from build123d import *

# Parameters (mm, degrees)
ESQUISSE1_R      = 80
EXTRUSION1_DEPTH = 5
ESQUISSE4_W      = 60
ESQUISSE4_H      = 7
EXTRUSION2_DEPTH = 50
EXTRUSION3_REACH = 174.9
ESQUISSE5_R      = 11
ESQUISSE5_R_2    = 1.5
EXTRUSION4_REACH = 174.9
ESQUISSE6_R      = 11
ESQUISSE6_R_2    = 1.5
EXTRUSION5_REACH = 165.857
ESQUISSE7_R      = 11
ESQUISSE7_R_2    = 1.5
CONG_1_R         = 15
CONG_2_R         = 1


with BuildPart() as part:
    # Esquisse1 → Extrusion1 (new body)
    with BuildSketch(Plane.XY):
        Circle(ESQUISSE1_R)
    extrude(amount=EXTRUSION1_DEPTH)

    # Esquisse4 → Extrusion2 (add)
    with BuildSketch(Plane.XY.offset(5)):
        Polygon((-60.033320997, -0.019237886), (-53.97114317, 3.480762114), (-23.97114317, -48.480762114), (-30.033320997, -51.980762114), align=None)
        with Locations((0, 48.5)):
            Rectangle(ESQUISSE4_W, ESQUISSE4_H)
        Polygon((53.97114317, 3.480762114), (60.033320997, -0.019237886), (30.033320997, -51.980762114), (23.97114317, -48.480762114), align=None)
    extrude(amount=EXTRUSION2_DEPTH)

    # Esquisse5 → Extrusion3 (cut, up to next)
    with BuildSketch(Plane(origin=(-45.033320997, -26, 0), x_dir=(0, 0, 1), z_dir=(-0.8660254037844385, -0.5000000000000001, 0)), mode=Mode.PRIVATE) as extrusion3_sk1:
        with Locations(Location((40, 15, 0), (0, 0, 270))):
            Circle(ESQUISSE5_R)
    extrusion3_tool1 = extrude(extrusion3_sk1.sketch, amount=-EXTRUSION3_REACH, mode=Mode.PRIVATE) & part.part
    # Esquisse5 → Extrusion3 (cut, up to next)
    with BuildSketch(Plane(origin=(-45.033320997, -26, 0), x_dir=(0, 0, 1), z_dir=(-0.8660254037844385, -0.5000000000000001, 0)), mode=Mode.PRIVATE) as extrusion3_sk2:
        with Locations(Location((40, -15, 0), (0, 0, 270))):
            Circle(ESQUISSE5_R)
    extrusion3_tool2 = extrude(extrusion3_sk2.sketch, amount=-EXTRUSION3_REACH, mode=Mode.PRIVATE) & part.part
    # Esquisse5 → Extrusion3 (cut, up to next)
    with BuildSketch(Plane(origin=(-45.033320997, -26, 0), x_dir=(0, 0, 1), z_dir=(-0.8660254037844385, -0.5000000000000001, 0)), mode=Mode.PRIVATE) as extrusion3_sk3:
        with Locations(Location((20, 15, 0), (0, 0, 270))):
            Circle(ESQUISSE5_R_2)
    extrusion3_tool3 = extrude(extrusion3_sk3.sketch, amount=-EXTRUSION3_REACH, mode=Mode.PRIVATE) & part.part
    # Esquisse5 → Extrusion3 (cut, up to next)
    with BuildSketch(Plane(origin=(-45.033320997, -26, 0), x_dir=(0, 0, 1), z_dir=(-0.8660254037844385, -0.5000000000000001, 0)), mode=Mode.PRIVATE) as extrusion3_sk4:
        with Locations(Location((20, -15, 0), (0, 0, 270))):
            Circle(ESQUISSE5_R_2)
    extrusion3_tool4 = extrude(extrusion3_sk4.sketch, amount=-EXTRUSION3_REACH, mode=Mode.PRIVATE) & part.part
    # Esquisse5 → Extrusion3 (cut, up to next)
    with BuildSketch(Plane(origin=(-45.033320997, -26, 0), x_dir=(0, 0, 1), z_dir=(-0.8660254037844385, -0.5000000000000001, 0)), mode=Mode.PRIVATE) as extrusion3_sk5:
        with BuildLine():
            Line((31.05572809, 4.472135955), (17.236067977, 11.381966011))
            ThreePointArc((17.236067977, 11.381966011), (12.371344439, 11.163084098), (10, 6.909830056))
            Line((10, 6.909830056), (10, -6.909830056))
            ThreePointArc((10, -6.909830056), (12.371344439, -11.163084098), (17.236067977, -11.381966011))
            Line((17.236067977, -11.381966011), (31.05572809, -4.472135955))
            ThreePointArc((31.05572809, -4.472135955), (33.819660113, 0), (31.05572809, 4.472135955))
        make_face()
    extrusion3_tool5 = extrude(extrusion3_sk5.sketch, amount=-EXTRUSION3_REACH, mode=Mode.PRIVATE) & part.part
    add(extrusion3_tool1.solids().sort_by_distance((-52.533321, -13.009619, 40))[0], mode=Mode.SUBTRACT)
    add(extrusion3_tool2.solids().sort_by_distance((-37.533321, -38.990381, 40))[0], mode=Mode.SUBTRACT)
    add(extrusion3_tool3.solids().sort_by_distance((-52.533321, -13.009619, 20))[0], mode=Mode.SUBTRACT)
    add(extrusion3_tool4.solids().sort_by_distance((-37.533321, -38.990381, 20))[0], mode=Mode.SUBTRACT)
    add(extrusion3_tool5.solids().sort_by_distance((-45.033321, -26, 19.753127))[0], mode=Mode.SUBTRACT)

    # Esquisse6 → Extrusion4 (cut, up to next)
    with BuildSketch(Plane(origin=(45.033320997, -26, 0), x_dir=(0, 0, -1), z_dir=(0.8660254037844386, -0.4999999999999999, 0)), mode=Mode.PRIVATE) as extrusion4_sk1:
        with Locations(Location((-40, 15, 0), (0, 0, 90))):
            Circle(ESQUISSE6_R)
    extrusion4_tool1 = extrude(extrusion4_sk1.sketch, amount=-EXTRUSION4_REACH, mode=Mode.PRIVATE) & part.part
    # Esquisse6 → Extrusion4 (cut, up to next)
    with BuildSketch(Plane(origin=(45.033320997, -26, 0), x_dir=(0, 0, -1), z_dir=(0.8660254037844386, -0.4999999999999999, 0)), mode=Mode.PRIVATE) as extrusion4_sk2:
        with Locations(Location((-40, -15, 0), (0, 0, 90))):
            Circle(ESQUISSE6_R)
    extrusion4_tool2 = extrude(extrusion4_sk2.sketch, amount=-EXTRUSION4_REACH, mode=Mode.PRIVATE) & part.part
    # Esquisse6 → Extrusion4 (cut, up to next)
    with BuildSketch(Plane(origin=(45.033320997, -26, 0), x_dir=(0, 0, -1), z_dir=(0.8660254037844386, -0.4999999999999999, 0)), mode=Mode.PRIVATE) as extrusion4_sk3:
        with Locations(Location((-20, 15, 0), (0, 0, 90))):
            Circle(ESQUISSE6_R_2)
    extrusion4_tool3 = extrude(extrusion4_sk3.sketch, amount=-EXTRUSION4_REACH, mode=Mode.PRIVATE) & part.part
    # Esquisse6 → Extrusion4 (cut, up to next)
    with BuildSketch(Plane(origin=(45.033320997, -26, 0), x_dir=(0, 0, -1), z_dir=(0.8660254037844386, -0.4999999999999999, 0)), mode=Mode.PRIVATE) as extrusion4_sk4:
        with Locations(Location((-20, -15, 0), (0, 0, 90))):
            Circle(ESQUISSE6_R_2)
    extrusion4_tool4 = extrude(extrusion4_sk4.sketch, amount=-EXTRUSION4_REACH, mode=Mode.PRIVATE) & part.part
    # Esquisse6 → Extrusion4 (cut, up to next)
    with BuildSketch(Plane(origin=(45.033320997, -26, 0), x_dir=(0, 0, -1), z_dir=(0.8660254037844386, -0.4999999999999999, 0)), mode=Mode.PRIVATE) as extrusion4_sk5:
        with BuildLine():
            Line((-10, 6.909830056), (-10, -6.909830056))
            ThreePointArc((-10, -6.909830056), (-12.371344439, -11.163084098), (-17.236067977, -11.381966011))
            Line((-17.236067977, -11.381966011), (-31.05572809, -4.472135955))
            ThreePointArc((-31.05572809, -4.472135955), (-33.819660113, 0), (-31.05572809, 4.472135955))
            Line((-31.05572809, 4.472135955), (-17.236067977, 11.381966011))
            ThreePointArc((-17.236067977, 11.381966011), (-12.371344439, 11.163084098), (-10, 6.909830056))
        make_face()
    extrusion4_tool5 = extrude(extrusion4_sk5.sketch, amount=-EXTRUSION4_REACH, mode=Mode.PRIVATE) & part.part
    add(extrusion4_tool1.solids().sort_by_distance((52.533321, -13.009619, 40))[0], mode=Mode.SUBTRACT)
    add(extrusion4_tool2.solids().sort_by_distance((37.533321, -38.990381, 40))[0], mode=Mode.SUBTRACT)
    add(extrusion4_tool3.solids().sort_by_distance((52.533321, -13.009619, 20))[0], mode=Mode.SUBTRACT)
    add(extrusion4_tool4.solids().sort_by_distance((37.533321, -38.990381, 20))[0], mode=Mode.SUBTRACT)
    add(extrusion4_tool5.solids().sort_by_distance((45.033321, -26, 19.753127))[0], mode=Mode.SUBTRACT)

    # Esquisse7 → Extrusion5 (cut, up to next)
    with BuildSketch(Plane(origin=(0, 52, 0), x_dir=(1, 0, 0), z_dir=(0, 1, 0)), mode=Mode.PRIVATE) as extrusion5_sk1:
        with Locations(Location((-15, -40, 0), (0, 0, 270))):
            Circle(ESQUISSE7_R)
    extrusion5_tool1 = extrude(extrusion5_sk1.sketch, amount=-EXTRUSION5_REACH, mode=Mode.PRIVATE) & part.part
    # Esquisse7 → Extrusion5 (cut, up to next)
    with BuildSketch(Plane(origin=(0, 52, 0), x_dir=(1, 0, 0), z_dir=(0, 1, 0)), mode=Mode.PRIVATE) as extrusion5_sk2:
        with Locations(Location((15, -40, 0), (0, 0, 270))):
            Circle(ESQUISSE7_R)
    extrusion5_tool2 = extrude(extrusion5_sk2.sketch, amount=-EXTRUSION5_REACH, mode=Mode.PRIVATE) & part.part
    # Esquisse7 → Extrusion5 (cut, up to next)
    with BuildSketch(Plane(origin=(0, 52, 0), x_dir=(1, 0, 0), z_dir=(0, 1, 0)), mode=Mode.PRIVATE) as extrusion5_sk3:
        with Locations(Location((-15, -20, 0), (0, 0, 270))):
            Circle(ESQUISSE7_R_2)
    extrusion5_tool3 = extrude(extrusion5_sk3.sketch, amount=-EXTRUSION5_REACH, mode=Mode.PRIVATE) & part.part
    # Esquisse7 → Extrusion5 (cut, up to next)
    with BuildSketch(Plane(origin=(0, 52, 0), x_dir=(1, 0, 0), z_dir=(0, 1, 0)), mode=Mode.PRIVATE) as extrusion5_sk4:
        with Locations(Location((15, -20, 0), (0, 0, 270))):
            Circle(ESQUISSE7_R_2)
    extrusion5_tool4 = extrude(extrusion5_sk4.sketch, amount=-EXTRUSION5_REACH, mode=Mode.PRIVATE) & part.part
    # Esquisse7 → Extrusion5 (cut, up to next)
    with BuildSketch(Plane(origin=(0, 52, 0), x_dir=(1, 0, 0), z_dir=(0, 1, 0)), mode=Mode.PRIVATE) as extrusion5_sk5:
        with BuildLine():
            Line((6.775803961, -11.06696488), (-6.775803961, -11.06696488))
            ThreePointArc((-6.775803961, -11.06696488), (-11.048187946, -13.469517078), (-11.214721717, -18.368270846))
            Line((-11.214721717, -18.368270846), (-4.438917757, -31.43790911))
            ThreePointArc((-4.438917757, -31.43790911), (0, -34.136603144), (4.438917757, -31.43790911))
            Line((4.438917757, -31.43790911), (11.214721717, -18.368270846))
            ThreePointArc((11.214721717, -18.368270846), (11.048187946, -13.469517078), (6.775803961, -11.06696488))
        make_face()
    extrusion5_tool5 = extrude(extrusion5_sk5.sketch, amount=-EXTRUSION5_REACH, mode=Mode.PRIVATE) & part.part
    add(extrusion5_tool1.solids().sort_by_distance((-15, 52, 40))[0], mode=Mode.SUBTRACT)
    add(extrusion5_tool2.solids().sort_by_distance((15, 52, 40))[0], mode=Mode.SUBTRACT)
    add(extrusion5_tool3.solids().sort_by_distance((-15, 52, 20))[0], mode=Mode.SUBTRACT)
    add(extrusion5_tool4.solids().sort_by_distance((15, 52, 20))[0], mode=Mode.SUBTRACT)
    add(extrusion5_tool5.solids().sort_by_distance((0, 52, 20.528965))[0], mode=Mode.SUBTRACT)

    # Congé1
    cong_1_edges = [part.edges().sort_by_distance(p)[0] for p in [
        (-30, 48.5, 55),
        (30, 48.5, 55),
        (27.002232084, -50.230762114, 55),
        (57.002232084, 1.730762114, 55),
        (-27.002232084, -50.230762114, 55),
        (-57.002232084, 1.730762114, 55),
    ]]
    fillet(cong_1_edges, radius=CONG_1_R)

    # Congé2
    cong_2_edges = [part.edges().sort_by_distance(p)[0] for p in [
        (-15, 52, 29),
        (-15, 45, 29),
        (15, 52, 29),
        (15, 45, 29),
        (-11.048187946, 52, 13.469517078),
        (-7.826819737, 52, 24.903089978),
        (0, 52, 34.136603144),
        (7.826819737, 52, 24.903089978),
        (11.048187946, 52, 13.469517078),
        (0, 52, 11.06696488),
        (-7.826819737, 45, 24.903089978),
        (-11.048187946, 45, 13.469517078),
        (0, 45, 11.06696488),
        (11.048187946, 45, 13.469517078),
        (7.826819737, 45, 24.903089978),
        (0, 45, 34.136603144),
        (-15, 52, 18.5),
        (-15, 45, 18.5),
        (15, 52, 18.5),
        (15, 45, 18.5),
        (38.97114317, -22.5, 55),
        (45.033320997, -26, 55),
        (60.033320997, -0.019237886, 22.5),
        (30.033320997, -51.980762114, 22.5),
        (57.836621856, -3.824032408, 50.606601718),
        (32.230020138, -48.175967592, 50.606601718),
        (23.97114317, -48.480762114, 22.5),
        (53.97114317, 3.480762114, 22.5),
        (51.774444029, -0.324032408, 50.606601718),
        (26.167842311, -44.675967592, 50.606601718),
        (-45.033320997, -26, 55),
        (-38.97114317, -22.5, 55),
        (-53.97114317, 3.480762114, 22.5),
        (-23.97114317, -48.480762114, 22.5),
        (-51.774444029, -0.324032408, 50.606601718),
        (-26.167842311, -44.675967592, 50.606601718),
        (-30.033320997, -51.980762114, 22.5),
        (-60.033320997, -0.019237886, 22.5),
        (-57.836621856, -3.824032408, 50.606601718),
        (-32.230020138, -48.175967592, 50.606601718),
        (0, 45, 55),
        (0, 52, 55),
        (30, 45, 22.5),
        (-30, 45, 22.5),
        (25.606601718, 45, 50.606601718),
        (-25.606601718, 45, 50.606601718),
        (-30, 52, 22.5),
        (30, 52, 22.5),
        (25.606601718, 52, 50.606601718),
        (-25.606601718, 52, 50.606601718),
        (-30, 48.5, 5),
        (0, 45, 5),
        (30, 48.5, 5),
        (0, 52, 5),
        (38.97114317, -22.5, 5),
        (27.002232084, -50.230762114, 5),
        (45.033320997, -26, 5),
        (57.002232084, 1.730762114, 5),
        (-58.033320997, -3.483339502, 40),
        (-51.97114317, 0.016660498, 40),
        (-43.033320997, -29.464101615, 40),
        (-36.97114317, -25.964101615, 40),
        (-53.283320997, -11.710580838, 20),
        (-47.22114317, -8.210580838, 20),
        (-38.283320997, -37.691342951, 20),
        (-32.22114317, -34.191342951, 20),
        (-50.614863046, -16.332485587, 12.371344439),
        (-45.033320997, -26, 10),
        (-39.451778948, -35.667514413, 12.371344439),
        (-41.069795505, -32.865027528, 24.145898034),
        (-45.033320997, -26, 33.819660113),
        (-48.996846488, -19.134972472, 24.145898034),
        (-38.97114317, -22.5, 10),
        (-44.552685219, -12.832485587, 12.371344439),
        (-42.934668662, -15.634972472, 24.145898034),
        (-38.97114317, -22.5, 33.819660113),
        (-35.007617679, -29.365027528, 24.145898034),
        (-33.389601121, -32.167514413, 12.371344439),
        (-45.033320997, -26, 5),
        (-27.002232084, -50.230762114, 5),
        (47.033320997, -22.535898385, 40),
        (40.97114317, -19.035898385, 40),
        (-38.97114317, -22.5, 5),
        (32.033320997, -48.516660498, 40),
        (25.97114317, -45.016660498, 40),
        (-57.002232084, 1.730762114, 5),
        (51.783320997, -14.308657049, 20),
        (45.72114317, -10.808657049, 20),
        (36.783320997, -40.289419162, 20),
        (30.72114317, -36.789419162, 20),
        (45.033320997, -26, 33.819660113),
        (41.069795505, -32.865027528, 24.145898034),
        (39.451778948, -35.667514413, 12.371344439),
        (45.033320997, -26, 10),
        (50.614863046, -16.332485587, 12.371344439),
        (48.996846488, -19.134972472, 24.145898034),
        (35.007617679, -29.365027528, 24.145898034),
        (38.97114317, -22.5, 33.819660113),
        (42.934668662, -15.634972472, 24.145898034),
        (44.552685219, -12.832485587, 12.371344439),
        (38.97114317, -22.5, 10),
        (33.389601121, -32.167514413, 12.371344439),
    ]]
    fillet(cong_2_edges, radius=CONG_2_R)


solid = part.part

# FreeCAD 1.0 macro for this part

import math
import FreeCAD as App
import Part
import Sketcher

V = App.Vector
Q = App.Units.Quantity


def edges_at(feature, points):
    """Names of the edges that pass closest to the given points."""
    edges = feature.Shape.Edges
    near = lambda p: min(range(len(edges)), key=lambda i: edges[i].distToShape(Part.Vertex(*p))[0])
    return sorted({f"Edge{near(p) + 1}" for p in points})


def add_polygon(sketch, points):
    """Adds a closed chain of lines whose ends are joined by coincident constraints."""
    first, n = sketch.GeometryCount, len(points)
    for a, b in zip(points, points[1:] + points[:1]):
        sketch.addGeometry(Part.LineSegment(App.Vector(*a, 0), App.Vector(*b, 0)), False)
    for i in range(n):
        sketch.addConstraint(Sketcher.Constraint("Coincident", first + i, 2, first + (i + 1) % n, 1))

doc = App.newDocument("Part")
params = doc.addObject("Spreadsheet::Sheet", "Params")
for row, (alias, value) in enumerate([
    ("sketch1_diameter", "160 mm"),
    ("pad1_length", "5 mm"),
    ("sketch2_width", "60 mm"),
    ("sketch2_height", "7 mm"),
    ("sketch2_length", "7 mm"),
    ("sketch2_length2", "60 mm"),
    ("pad2_length", "50 mm"),
    ("sketch3_diameter", "22 mm"),
    ("sketch4_diameter", "22 mm"),
    ("sketch5_diameter", "3 mm"),
    ("sketch6_diameter", "3 mm"),
    ("sketch7_radius", "5 mm"),
    ("sketch8_diameter", "22 mm"),
    ("sketch9_diameter", "22 mm"),
    ("sketch10_diameter", "3 mm"),
    ("sketch11_diameter", "3 mm"),
    ("sketch12_radius", "5 mm"),
    ("sketch13_diameter", "22 mm"),
    ("sketch14_diameter", "22 mm"),
    ("sketch15_diameter", "3 mm"),
    ("sketch16_diameter", "3 mm"),
    ("sketch17_radius", "5 mm"),
    ("fillet_radius", "15 mm"),
    ("fillet2_radius", "1 mm"),
], start=1):
    params.set(f"A{row}", alias)
    params.set(f"B{row}", "=" + value)
    params.setAlias(f"B{row}", alias)

body = doc.addObject("PartDesign::Body", "Body")

# Sketch on XY plane
sketch1 = body.newObject("Sketcher::SketchObject", "Sketch")
sketch1.AttachmentSupport = (doc.getObject("XY_Plane"), [""])
sketch1.MapMode = "FlatFace"
sketch1.addGeometry(Part.Circle(V(0, 0, 0), V(0, 0, 1), 80), False)
sketch1.addConstraint([
    Sketcher.Constraint("Coincident", 0, 3, -1, 1),
    Sketcher.Constraint("Diameter", 0, 160.0),
])
sketch1.setExpression("Constraints[1]", "Params.sketch1_diameter")
pad1 = body.newObject("PartDesign::Pad", "Pad")
pad1.Profile = sketch1
pad1.setExpression("Length", "Params.pad1_length")

# Sketch on XY plane
sketch2 = body.newObject("Sketcher::SketchObject", "Sketch001")
sketch2.AttachmentSupport = (doc.getObject("XY_Plane"), [""])
sketch2.MapMode = "FlatFace"
sketch2.AttachmentOffset = App.Placement(V(0, 0, 5), App.Rotation())
add_polygon(sketch2, [(-54, 3), (-60, 0), (-30, -52), (-24, -48)])  # lines 0-3
add_polygon(sketch2, [(-30, 52), (-30, 45), (30, 45), (30, 52)])  # lines 4-7
add_polygon(sketch2, [(60, 0), (54, 3), (24, -48), (30, -52)])  # lines 8-11
sketch2.addConstraint([
    Sketcher.Constraint("Vertical", 4),
    Sketcher.Constraint("Horizontal", 5),
    Sketcher.Constraint("Vertical", 6),
    Sketcher.Constraint("Horizontal", 7),
    Sketcher.Constraint("Symmetric", 3, 2, 8, 2, -2),
    Sketcher.Constraint("Symmetric", 2, 2, 9, 2, -2),
    Sketcher.Constraint("Symmetric", 1, 2, 10, 2, -2),
    Sketcher.Constraint("Symmetric", 0, 2, 11, 2, -2),
    Sketcher.Constraint("Perpendicular", 0, 1),
    Sketcher.Constraint("Perpendicular", 1, 2),
    Sketcher.Constraint("Perpendicular", 2, 3),
    Sketcher.Constraint("DistanceX", 5, 1, 5, 2, 60.0),
    Sketcher.Constraint("DistanceY", 4, 2, 4, 1, 7.0),
    Sketcher.Constraint("Angle", 0, Q("-150 deg")),
    Sketcher.Constraint("Distance", 0, 7.0),
    Sketcher.Constraint("Distance", 1, 60.0),
    Sketcher.Constraint("DistanceX", 4, 2, -1, 1, 30.0),
    Sketcher.Constraint("DistanceY", -1, 1, 4, 2, 45.0),
    Sketcher.Constraint("DistanceX", 0, 2, -1, 1, 60.033321),
    Sketcher.Constraint("DistanceY", 0, 2, -1, 1, 0.019238),
])
sketch2.setExpression("Constraints[23]", "Params.sketch2_width")
sketch2.setExpression("Constraints[24]", "Params.sketch2_height")
sketch2.setExpression("Constraints[26]", "Params.sketch2_length")
sketch2.setExpression("Constraints[27]", "Params.sketch2_length2")
pad2 = body.newObject("PartDesign::Pad", "Pad001")
pad2.Profile = sketch2
pad2.setExpression("Length", "Params.pad2_length")

# Sketch on an angled plane
sketch3 = body.newObject("Sketcher::SketchObject", "Sketch002")
sketch3.Placement = App.Placement(V(-45.033321, -26, 0), App.Rotation(V(0, 0, 1), V(-0.5, 0.866025404, 0), V(-0.866025404, -0.5, 0), "ZXY"))
sketch3.addGeometry(Part.Circle(V(40, 15, 0), V(0, 0, 1), 11), False)
sketch3.addConstraint([
    Sketcher.Constraint("Diameter", 0, 22.0),
    Sketcher.Constraint("DistanceX", -1, 1, 0, 3, 40.0),
    Sketcher.Constraint("DistanceY", -1, 1, 0, 3, 15.0),
])
sketch3.setExpression("Constraints[0]", "Params.sketch3_diameter")
pocket1 = body.newObject("PartDesign::Pocket", "Pocket")
pocket1.Profile = sketch3
pocket1.Type = "UpToFirst"

# Sketch on an angled plane
sketch4 = body.newObject("Sketcher::SketchObject", "Sketch003")
sketch4.Placement = App.Placement(V(-45.033321, -26, 0), App.Rotation(V(0, 0, 1), V(-0.5, 0.866025404, 0), V(-0.866025404, -0.5, 0), "ZXY"))
sketch4.addGeometry(Part.Circle(V(40, -15, 0), V(0, 0, 1), 11), False)
sketch4.addConstraint([
    Sketcher.Constraint("Diameter", 0, 22.0),
    Sketcher.Constraint("DistanceX", -1, 1, 0, 3, 40.0),
    Sketcher.Constraint("DistanceY", 0, 3, -1, 1, 15.0),
])
sketch4.setExpression("Constraints[0]", "Params.sketch4_diameter")
pocket2 = body.newObject("PartDesign::Pocket", "Pocket001")
pocket2.Profile = sketch4
pocket2.Type = "UpToFirst"

# Sketch on an angled plane
sketch5 = body.newObject("Sketcher::SketchObject", "Sketch004")
sketch5.Placement = App.Placement(V(-45.033321, -26, 0), App.Rotation(V(0, 0, 1), V(-0.5, 0.866025404, 0), V(-0.866025404, -0.5, 0), "ZXY"))
sketch5.addGeometry(Part.Circle(V(20, 15, 0), V(0, 0, 1), 1.5), False)
sketch5.addConstraint([
    Sketcher.Constraint("Diameter", 0, 3.0),
    Sketcher.Constraint("DistanceX", -1, 1, 0, 3, 20.0),
    Sketcher.Constraint("DistanceY", -1, 1, 0, 3, 15.0),
])
sketch5.setExpression("Constraints[0]", "Params.sketch5_diameter")
pocket3 = body.newObject("PartDesign::Pocket", "Pocket002")
pocket3.Profile = sketch5
pocket3.Type = "UpToFirst"

# Sketch on an angled plane
sketch6 = body.newObject("Sketcher::SketchObject", "Sketch005")
sketch6.Placement = App.Placement(V(-45.033321, -26, 0), App.Rotation(V(0, 0, 1), V(-0.5, 0.866025404, 0), V(-0.866025404, -0.5, 0), "ZXY"))
sketch6.addGeometry(Part.Circle(V(20, -15, 0), V(0, 0, 1), 1.5), False)
sketch6.addConstraint([
    Sketcher.Constraint("Diameter", 0, 3.0),
    Sketcher.Constraint("DistanceX", -1, 1, 0, 3, 20.0),
    Sketcher.Constraint("DistanceY", 0, 3, -1, 1, 15.0),
])
sketch6.setExpression("Constraints[0]", "Params.sketch6_diameter")
pocket4 = body.newObject("PartDesign::Pocket", "Pocket003")
pocket4.Profile = sketch6
pocket4.Type = "UpToFirst"

# Sketch on an angled plane
sketch7 = body.newObject("Sketcher::SketchObject", "Sketch006")
sketch7.Placement = App.Placement(V(-45.033321, -26, 0), App.Rotation(V(0, 0, 1), V(-0.5, 0.866025404, 0), V(-0.866025404, -0.5, 0), "ZXY"))
sketch7.addGeometry([
    Part.LineSegment(V(31.1, 4.5, 0), V(17.2, 11.4, 0)),  # 0
    Part.ArcOfCircle(Part.Circle(V(15, 6.9, 0), V(0, 0, 1), 5), math.radians(63), math.radians(180)),  # 1
    Part.LineSegment(V(10, 6.9, 0), V(10, -6.9, 0)),  # 2
    Part.ArcOfCircle(Part.Circle(V(15, -6.9, 0), V(0, 0, 1), 5), math.radians(180), math.radians(297)),  # 3
    Part.LineSegment(V(17.2, -11.4, 0), V(31.1, -4.5, 0)),  # 4
    Part.ArcOfCircle(Part.Circle(V(28.8, 0, 0), V(0, 0, 1), 5), math.radians(-63), math.radians(63)),  # 5
], False)
sketch7.addConstraint([
    Sketcher.Constraint("Tangent", 0, 2, 1, 1),
    Sketcher.Constraint("Tangent", 1, 2, 2, 1),
    Sketcher.Constraint("Tangent", 2, 2, 3, 1),
    Sketcher.Constraint("Tangent", 3, 2, 4, 1),
    Sketcher.Constraint("Tangent", 4, 2, 5, 1),
    Sketcher.Constraint("Tangent", 5, 2, 0, 1),
    Sketcher.Constraint("Vertical", 2),
    Sketcher.Constraint("Equal", 1, 3),
    Sketcher.Constraint("Equal", 3, 5),
    Sketcher.Constraint("Symmetric", 0, 2, 3, 2, -1),
    Sketcher.Constraint("Radius", 1, 5.0),
    Sketcher.Constraint("DistanceX", -1, 1, 1, 3, 15.0),
    Sketcher.Constraint("DistanceY", 2, 2, 2, 1, 13.81966),
    Sketcher.Constraint("DistanceY", 4, 2, 0, 2, 15.854102),
])
sketch7.setExpression("Constraints[10]", "Params.sketch7_radius")
pocket5 = body.newObject("PartDesign::Pocket", "Pocket004")
pocket5.Profile = sketch7
pocket5.Type = "UpToFirst"

# Sketch on an angled plane
sketch8 = body.newObject("Sketcher::SketchObject", "Sketch007")
sketch8.Placement = App.Placement(V(45.033321, -26, 0), App.Rotation(V(0, 0, -1), V(0.5, 0.866025404, 0), V(0.866025404, -0.5, 0), "ZXY"))
sketch8.addGeometry(Part.Circle(V(-40, 15, 0), V(0, 0, 1), 11), False)
sketch8.addConstraint([
    Sketcher.Constraint("Diameter", 0, 22.0),
    Sketcher.Constraint("DistanceX", 0, 3, -1, 1, 40.0),
    Sketcher.Constraint("DistanceY", -1, 1, 0, 3, 15.0),
])
sketch8.setExpression("Constraints[0]", "Params.sketch8_diameter")
pocket6 = body.newObject("PartDesign::Pocket", "Pocket005")
pocket6.Profile = sketch8
pocket6.Type = "UpToFirst"

# Sketch on an angled plane
sketch9 = body.newObject("Sketcher::SketchObject", "Sketch008")
sketch9.Placement = App.Placement(V(45.033321, -26, 0), App.Rotation(V(0, 0, -1), V(0.5, 0.866025404, 0), V(0.866025404, -0.5, 0), "ZXY"))
sketch9.addGeometry(Part.Circle(V(-40, -15, 0), V(0, 0, 1), 11), False)
sketch9.addConstraint([
    Sketcher.Constraint("Diameter", 0, 22.0),
    Sketcher.Constraint("DistanceX", 0, 3, -1, 1, 40.0),
    Sketcher.Constraint("DistanceY", 0, 3, -1, 1, 15.0),
])
sketch9.setExpression("Constraints[0]", "Params.sketch9_diameter")
pocket7 = body.newObject("PartDesign::Pocket", "Pocket006")
pocket7.Profile = sketch9
pocket7.Type = "UpToFirst"

# Sketch on an angled plane
sketch10 = body.newObject("Sketcher::SketchObject", "Sketch009")
sketch10.Placement = App.Placement(V(45.033321, -26, 0), App.Rotation(V(0, 0, -1), V(0.5, 0.866025404, 0), V(0.866025404, -0.5, 0), "ZXY"))
sketch10.addGeometry(Part.Circle(V(-20, 15, 0), V(0, 0, 1), 1.5), False)
sketch10.addConstraint([
    Sketcher.Constraint("Diameter", 0, 3.0),
    Sketcher.Constraint("DistanceX", 0, 3, -1, 1, 20.0),
    Sketcher.Constraint("DistanceY", -1, 1, 0, 3, 15.0),
])
sketch10.setExpression("Constraints[0]", "Params.sketch10_diameter")
pocket8 = body.newObject("PartDesign::Pocket", "Pocket007")
pocket8.Profile = sketch10
pocket8.Type = "UpToFirst"

# Sketch on an angled plane
sketch11 = body.newObject("Sketcher::SketchObject", "Sketch010")
sketch11.Placement = App.Placement(V(45.033321, -26, 0), App.Rotation(V(0, 0, -1), V(0.5, 0.866025404, 0), V(0.866025404, -0.5, 0), "ZXY"))
sketch11.addGeometry(Part.Circle(V(-20, -15, 0), V(0, 0, 1), 1.5), False)
sketch11.addConstraint([
    Sketcher.Constraint("Diameter", 0, 3.0),
    Sketcher.Constraint("DistanceX", 0, 3, -1, 1, 20.0),
    Sketcher.Constraint("DistanceY", 0, 3, -1, 1, 15.0),
])
sketch11.setExpression("Constraints[0]", "Params.sketch11_diameter")
pocket9 = body.newObject("PartDesign::Pocket", "Pocket008")
pocket9.Profile = sketch11
pocket9.Type = "UpToFirst"

# Sketch on an angled plane
sketch12 = body.newObject("Sketcher::SketchObject", "Sketch011")
sketch12.Placement = App.Placement(V(45.033321, -26, 0), App.Rotation(V(0, 0, -1), V(0.5, 0.866025404, 0), V(0.866025404, -0.5, 0), "ZXY"))
sketch12.addGeometry([
    Part.LineSegment(V(-10, -6.9, 0), V(-10, 6.9, 0)),  # 0
    Part.ArcOfCircle(Part.Circle(V(-15, 6.9, 0), V(0, 0, 1), 5), math.radians(0), math.radians(117)),  # 1
    Part.LineSegment(V(-17.2, 11.4, 0), V(-31.1, 4.5, 0)),  # 2
    Part.ArcOfCircle(Part.Circle(V(-28.8, 0, 0), V(0, 0, 1), 5), math.radians(117), math.radians(243)),  # 3
    Part.LineSegment(V(-31.1, -4.5, 0), V(-17.2, -11.4, 0)),  # 4
    Part.ArcOfCircle(Part.Circle(V(-15, -6.9, 0), V(0, 0, 1), 5), math.radians(-117), math.radians(0)),  # 5
], False)
sketch12.addConstraint([
    Sketcher.Constraint("Tangent", 0, 2, 1, 1),
    Sketcher.Constraint("Tangent", 1, 2, 2, 1),
    Sketcher.Constraint("Tangent", 2, 2, 3, 1),
    Sketcher.Constraint("Tangent", 3, 2, 4, 1),
    Sketcher.Constraint("Tangent", 4, 2, 5, 1),
    Sketcher.Constraint("Tangent", 5, 2, 0, 1),
    Sketcher.Constraint("Vertical", 0),
    Sketcher.Constraint("Equal", 1, 3),
    Sketcher.Constraint("Equal", 3, 5),
    Sketcher.Constraint("Symmetric", 2, 2, 3, 2, -1),
    Sketcher.Constraint("Radius", 1, 5.0),
    Sketcher.Constraint("DistanceX", 1, 3, -1, 1, 15.0),
    Sketcher.Constraint("DistanceY", 0, 1, 0, 2, 13.81966),
    Sketcher.Constraint("DistanceY", 3, 2, 1, 2, 15.854102),
])
sketch12.setExpression("Constraints[10]", "Params.sketch12_radius")
pocket10 = body.newObject("PartDesign::Pocket", "Pocket009")
pocket10.Profile = sketch12
pocket10.Type = "UpToFirst"

# Sketch on XZ plane
sketch13 = body.newObject("Sketcher::SketchObject", "Sketch012")
sketch13.AttachmentSupport = (doc.getObject("XZ_Plane"), [""])
sketch13.MapMode = "FlatFace"
sketch13.AttachmentOffset = App.Placement(V(0, 0, -52), App.Rotation())
sketch13.addGeometry(Part.Circle(V(-15, 40, 0), V(0, 0, 1), 11), False)
sketch13.addConstraint([
    Sketcher.Constraint("Diameter", 0, 22.0),
    Sketcher.Constraint("DistanceX", 0, 3, -1, 1, 15.0),
    Sketcher.Constraint("DistanceY", -1, 1, 0, 3, 40.0),
])
sketch13.setExpression("Constraints[0]", "Params.sketch13_diameter")
pocket11 = body.newObject("PartDesign::Pocket", "Pocket010")
pocket11.Profile = sketch13
pocket11.Type = "UpToFirst"
pocket11.Reversed = True

# Sketch on XZ plane
sketch14 = body.newObject("Sketcher::SketchObject", "Sketch013")
sketch14.AttachmentSupport = (doc.getObject("XZ_Plane"), [""])
sketch14.MapMode = "FlatFace"
sketch14.AttachmentOffset = App.Placement(V(0, 0, -52), App.Rotation())
sketch14.addGeometry(Part.Circle(V(15, 40, 0), V(0, 0, 1), 11), False)
sketch14.addConstraint([
    Sketcher.Constraint("Diameter", 0, 22.0),
    Sketcher.Constraint("DistanceX", -1, 1, 0, 3, 15.0),
    Sketcher.Constraint("DistanceY", -1, 1, 0, 3, 40.0),
])
sketch14.setExpression("Constraints[0]", "Params.sketch14_diameter")
pocket12 = body.newObject("PartDesign::Pocket", "Pocket011")
pocket12.Profile = sketch14
pocket12.Type = "UpToFirst"
pocket12.Reversed = True

# Sketch on XZ plane
sketch15 = body.newObject("Sketcher::SketchObject", "Sketch014")
sketch15.AttachmentSupport = (doc.getObject("XZ_Plane"), [""])
sketch15.MapMode = "FlatFace"
sketch15.AttachmentOffset = App.Placement(V(0, 0, -52), App.Rotation())
sketch15.addGeometry(Part.Circle(V(-15, 20, 0), V(0, 0, 1), 1.5), False)
sketch15.addConstraint([
    Sketcher.Constraint("Diameter", 0, 3.0),
    Sketcher.Constraint("DistanceX", 0, 3, -1, 1, 15.0),
    Sketcher.Constraint("DistanceY", -1, 1, 0, 3, 20.0),
])
sketch15.setExpression("Constraints[0]", "Params.sketch15_diameter")
pocket13 = body.newObject("PartDesign::Pocket", "Pocket012")
pocket13.Profile = sketch15
pocket13.Type = "UpToFirst"
pocket13.Reversed = True

# Sketch on XZ plane
sketch16 = body.newObject("Sketcher::SketchObject", "Sketch015")
sketch16.AttachmentSupport = (doc.getObject("XZ_Plane"), [""])
sketch16.MapMode = "FlatFace"
sketch16.AttachmentOffset = App.Placement(V(0, 0, -52), App.Rotation())
sketch16.addGeometry(Part.Circle(V(15, 20, 0), V(0, 0, 1), 1.5), False)
sketch16.addConstraint([
    Sketcher.Constraint("Diameter", 0, 3.0),
    Sketcher.Constraint("DistanceX", -1, 1, 0, 3, 15.0),
    Sketcher.Constraint("DistanceY", -1, 1, 0, 3, 20.0),
])
sketch16.setExpression("Constraints[0]", "Params.sketch16_diameter")
pocket14 = body.newObject("PartDesign::Pocket", "Pocket013")
pocket14.Profile = sketch16
pocket14.Type = "UpToFirst"
pocket14.Reversed = True

# Sketch on XZ plane
sketch17 = body.newObject("Sketcher::SketchObject", "Sketch016")
sketch17.AttachmentSupport = (doc.getObject("XZ_Plane"), [""])
sketch17.MapMode = "FlatFace"
sketch17.AttachmentOffset = App.Placement(V(0, 0, -52), App.Rotation())
sketch17.addGeometry([
    Part.LineSegment(V(6.8, 11.1, 0), V(-6.8, 11.1, 0)),  # 0
    Part.ArcOfCircle(Part.Circle(V(-6.8, 16.1, 0), V(0, 0, 1), 5), math.radians(153), math.radians(270)),  # 1
    Part.LineSegment(V(-11.2, 18.4, 0), V(-4.4, 31.4, 0)),  # 2
    Part.ArcOfCircle(Part.Circle(V(0, 29.1, 0), V(0, 0, 1), 5), math.radians(27), math.radians(153)),  # 3
    Part.LineSegment(V(4.4, 31.4, 0), V(11.2, 18.4, 0)),  # 4
    Part.ArcOfCircle(Part.Circle(V(6.8, 16.1, 0), V(0, 0, 1), 5), math.radians(-90), math.radians(27)),  # 5
], False)
sketch17.addConstraint([
    Sketcher.Constraint("Tangent", 0, 2, 1, 2),
    Sketcher.Constraint("Tangent", 1, 1, 2, 1),
    Sketcher.Constraint("Tangent", 2, 2, 3, 2),
    Sketcher.Constraint("Tangent", 3, 1, 4, 1),
    Sketcher.Constraint("Tangent", 4, 2, 5, 2),
    Sketcher.Constraint("Tangent", 5, 1, 0, 1),
    Sketcher.Constraint("Horizontal", 0),
    Sketcher.Constraint("Equal", 1, 3),
    Sketcher.Constraint("Equal", 3, 5),
    Sketcher.Constraint("Symmetric", 2, 2, 3, 1, -2),
    Sketcher.Constraint("Radius", 1, 5.0),
    Sketcher.Constraint("Distance", 2, 14.721649),
    Sketcher.Constraint("DistanceX", 0, 2, 0, 1, 13.551608),
    Sketcher.Constraint("DistanceY", -1, 1, 1, 1, 18.368271),
])
sketch17.setExpression("Constraints[10]", "Params.sketch17_radius")
pocket15 = body.newObject("PartDesign::Pocket", "Pocket014")
pocket15.Profile = sketch17
pocket15.Type = "UpToFirst"
pocket15.Reversed = True
doc.recompute()

fillet = body.newObject("PartDesign::Fillet", "Fillet")
fillet.Base = (pocket15, edges_at(pocket15, [
    (-30, 48.5, 55),
    (30, 48.5, 55),
    (27.002, -50.231, 55),
    (57.002, 1.731, 55),
    (-27.002, -50.231, 55),
    (-57.002, 1.731, 55),
]))
fillet.setExpression("Radius", "Params.fillet_radius")
doc.recompute()

fillet2 = body.newObject("PartDesign::Fillet", "Fillet001")
fillet2.Base = (fillet, edges_at(fillet, [
    (-15, 52, 29),
    (-15, 45, 29),
    (15, 52, 29),
    (15, 45, 29),
    (-11.048, 52, 13.47),
    (-7.827, 52, 24.903),
    (0, 52, 34.137),
    (7.827, 52, 24.903),
    (11.048, 52, 13.47),
    (0, 52, 11.067),
    (-7.827, 45, 24.903),
    (-11.048, 45, 13.47),
    (0, 45, 11.067),
    (11.048, 45, 13.47),
    (7.827, 45, 24.903),
    (0, 45, 34.137),
    (-15, 52, 18.5),
    (-15, 45, 18.5),
    (15, 52, 18.5),
    (15, 45, 18.5),
    (38.971, -22.5, 55),
    (45.033, -26, 55),
    (60.033, -0.019, 22.5),
    (30.033, -51.981, 22.5),
    (57.837, -3.824, 50.607),
    (32.23, -48.176, 50.607),
    (23.971, -48.481, 22.5),
    (53.971, 3.481, 22.5),
    (51.774, -0.324, 50.607),
    (26.168, -44.676, 50.607),
    (-45.033, -26, 55),
    (-38.971, -22.5, 55),
    (-53.971, 3.481, 22.5),
    (-23.971, -48.481, 22.5),
    (-51.774, -0.324, 50.607),
    (-26.168, -44.676, 50.607),
    (-30.033, -51.981, 22.5),
    (-60.033, -0.019, 22.5),
    (-57.837, -3.824, 50.607),
    (-32.23, -48.176, 50.607),
    (0, 45, 55),
    (0, 52, 55),
    (30, 45, 22.5),
    (-30, 45, 22.5),
    (25.607, 45, 50.607),
    (-25.607, 45, 50.607),
    (-30, 52, 22.5),
    (30, 52, 22.5),
    (25.607, 52, 50.607),
    (-25.607, 52, 50.607),
    (-30, 48.5, 5),
    (0, 45, 5),
    (30, 48.5, 5),
    (0, 52, 5),
    (38.971, -22.5, 5),
    (27.002, -50.231, 5),
    (45.033, -26, 5),
    (57.002, 1.731, 5),
    (-58.033, -3.483, 40),
    (-51.971, 0.017, 40),
    (-43.033, -29.464, 40),
    (-36.971, -25.964, 40),
    (-53.283, -11.711, 20),
    (-47.221, -8.211, 20),
    (-38.283, -37.691, 20),
    (-32.221, -34.191, 20),
    (-50.615, -16.332, 12.371),
    (-45.033, -26, 10),
    (-39.452, -35.668, 12.371),
    (-41.07, -32.865, 24.146),
    (-45.033, -26, 33.82),
    (-48.997, -19.135, 24.146),
    (-38.971, -22.5, 10),
    (-44.553, -12.832, 12.371),
    (-42.935, -15.635, 24.146),
    (-38.971, -22.5, 33.82),
    (-35.008, -29.365, 24.146),
    (-33.39, -32.168, 12.371),
    (-45.033, -26, 5),
    (-27.002, -50.231, 5),
    (47.033, -22.536, 40),
    (40.971, -19.036, 40),
    (-38.971, -22.5, 5),
    (32.033, -48.517, 40),
    (25.971, -45.017, 40),
    (-57.002, 1.731, 5),
    (51.783, -14.309, 20),
    (45.721, -10.809, 20),
    (36.783, -40.289, 20),
    (30.721, -36.789, 20),
    (45.033, -26, 33.82),
    (41.07, -32.865, 24.146),
    (39.452, -35.668, 12.371),
    (45.033, -26, 10),
    (50.615, -16.332, 12.371),
    (48.997, -19.135, 24.146),
    (35.008, -29.365, 24.146),
    (38.971, -22.5, 33.82),
    (42.935, -15.635, 24.146),
    (44.553, -12.832, 12.371),
    (38.971, -22.5, 10),
    (33.39, -32.168, 12.371),
]))
fillet2.setExpression("Radius", "Params.fillet2_radius")

doc.recompute()
